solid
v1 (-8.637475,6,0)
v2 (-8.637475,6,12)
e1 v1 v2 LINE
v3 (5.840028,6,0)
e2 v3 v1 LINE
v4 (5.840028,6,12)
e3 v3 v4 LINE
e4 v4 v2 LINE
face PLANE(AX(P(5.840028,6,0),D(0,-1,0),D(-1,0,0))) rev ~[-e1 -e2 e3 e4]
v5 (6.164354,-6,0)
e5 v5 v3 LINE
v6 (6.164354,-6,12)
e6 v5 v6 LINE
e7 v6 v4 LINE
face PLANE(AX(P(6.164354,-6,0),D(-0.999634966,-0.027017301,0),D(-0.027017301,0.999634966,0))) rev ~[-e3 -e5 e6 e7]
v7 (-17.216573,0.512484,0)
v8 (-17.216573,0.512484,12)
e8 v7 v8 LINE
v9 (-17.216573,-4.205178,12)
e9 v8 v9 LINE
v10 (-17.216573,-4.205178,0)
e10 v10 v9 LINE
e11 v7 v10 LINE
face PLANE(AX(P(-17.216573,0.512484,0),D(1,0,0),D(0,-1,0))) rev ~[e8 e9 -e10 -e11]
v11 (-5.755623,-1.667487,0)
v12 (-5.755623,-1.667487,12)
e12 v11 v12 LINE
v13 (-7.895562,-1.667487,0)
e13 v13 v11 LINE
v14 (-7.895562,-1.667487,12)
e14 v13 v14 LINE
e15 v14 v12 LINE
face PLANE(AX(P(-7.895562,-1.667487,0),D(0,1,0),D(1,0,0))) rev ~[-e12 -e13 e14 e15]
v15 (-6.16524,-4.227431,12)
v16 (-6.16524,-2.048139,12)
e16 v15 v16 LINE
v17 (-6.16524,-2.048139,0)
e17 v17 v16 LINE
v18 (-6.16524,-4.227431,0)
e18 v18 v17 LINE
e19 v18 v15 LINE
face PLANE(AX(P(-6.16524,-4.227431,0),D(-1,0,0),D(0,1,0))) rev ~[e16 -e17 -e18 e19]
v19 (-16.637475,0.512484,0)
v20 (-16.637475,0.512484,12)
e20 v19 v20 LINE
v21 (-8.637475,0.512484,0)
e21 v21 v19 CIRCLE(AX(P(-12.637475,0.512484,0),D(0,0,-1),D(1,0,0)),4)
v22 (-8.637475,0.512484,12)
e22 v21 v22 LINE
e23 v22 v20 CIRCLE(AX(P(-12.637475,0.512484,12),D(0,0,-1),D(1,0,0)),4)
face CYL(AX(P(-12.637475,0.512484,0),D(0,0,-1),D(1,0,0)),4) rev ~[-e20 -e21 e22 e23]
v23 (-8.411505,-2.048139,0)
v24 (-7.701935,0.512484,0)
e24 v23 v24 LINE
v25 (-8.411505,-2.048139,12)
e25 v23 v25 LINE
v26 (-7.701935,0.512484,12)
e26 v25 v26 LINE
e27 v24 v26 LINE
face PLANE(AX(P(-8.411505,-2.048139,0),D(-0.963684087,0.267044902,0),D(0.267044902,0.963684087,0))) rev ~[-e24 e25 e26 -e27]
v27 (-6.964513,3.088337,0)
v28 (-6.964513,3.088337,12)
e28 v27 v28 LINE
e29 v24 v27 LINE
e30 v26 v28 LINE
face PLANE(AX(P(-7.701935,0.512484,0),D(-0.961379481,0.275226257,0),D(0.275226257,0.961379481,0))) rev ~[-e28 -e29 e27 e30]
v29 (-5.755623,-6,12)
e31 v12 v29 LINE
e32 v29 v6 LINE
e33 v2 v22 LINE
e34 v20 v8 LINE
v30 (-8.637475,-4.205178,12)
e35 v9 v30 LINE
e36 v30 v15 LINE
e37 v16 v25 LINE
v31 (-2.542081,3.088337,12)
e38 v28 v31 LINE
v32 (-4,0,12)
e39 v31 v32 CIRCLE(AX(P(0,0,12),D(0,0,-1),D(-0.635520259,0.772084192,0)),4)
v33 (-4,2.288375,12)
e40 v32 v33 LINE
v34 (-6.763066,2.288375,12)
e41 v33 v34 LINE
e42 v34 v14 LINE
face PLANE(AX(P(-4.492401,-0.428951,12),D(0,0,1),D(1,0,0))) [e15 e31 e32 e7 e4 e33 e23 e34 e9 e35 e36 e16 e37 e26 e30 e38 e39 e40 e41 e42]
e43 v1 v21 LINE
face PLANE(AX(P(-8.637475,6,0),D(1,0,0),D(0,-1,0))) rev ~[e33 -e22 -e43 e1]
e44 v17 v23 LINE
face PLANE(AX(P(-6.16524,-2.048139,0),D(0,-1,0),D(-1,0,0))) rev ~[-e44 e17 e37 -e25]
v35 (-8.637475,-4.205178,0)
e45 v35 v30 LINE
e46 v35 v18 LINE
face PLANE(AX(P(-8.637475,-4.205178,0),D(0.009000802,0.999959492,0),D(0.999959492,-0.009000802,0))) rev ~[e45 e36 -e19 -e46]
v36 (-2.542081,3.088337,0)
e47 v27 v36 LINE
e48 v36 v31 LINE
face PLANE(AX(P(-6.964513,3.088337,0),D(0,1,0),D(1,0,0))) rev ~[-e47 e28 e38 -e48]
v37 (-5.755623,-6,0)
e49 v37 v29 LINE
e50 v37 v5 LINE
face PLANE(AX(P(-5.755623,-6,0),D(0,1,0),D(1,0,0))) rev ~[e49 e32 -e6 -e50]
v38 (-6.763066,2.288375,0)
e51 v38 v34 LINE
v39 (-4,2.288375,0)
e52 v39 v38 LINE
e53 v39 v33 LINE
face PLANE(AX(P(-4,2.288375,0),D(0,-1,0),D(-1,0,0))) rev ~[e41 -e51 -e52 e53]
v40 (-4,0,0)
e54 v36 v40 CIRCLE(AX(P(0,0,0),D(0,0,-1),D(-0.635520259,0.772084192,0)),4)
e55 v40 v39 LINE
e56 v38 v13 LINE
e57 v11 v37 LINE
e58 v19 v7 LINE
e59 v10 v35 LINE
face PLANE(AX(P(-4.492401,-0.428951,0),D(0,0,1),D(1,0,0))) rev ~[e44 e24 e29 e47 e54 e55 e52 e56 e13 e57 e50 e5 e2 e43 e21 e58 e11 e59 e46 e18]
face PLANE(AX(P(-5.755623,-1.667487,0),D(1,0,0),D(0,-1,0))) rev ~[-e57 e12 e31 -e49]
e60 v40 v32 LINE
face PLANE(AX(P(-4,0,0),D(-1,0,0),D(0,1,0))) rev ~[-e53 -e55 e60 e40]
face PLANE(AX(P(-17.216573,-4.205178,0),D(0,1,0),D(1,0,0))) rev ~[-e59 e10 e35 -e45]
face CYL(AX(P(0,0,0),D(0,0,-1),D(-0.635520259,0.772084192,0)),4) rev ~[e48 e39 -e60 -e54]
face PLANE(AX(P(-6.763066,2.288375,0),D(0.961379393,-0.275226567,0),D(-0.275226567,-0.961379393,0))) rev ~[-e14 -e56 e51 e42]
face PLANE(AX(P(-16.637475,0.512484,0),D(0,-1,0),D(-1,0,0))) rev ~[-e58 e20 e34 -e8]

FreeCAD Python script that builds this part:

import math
import FreeCAD as App
import Part
import Sketcher
from FreeCAD import Vector
Q = App.Units.Quantity

doc = App.newDocument("Part")
body = doc.addObject("PartDesign::Body", "Body")

# Sketch on XY plane
sketch1 = doc.addObject("Sketcher::SketchObject", "Sketch")
body.addObject(sketch1)
sketch1.AttachmentSupport = (doc.XY_Plane, [""])
sketch1.MapMode = "FlatFace"
sketch1.addGeometry([
    Part.ArcOfCircle(Part.Circle(Vector(0, 0, 0), Vector(0, 0, 1), 4), math.radians(-180), math.radians(129)),  # 0
    Part.LineSegment(Vector(-4, 0, 0), Vector(-4, 2.3, 0)),  # 1
    Part.LineSegment(Vector(-4, 2.3, 0), Vector(-6.8, 2.3, 0)),  # 2
    Part.LineSegment(Vector(-6.8, 2.3, 0), Vector(-7.9, -1.7, 0)),  # 3
    Part.LineSegment(Vector(-7.9, -1.7, 0), Vector(-5.8, -1.7, 0)),  # 4
    Part.LineSegment(Vector(-5.8, -1.7, 0), Vector(-5.8, -6, 0)),  # 5
    Part.LineSegment(Vector(-5.8, -6, 0), Vector(6.2, -6, 0)),  # 6
    Part.LineSegment(Vector(6.2, -6, 0), Vector(5.8, 6, 0)),  # 7
    Part.LineSegment(Vector(5.8, 6, 0), Vector(-8.6, 6, 0)),  # 8
    Part.LineSegment(Vector(-8.6, 6, 0), Vector(-8.6, 0.5, 0)),  # 9
    Part.ArcOfCircle(Part.Circle(Vector(-12.6, 0.5, 0), Vector(0, 0, 1), 4), math.radians(180), math.radians(360)),  # 10
    Part.LineSegment(Vector(-16.6, 0.5, 0), Vector(-17.2, 0.5, 0)),  # 11
    Part.LineSegment(Vector(-17.2, 0.5, 0), Vector(-17.2, -4.2, 0)),  # 12
    Part.LineSegment(Vector(-17.2, -4.2, 0), Vector(-8.6, -4.2, 0)),  # 13
    Part.LineSegment(Vector(-8.6, -4.2, 0), Vector(-6.2, -4.2, 0)),  # 14
    Part.LineSegment(Vector(-6.2, -4.2, 0), Vector(-6.2, -2, 0)),  # 15
    Part.LineSegment(Vector(-6.2, -2, 0), Vector(-8.4, -2, 0)),  # 16
    Part.LineSegment(Vector(-8.4, -2, 0), Vector(-7.7, 0.5, 0)),  # 17
    Part.LineSegment(Vector(-7.7, 0.5, 0), Vector(-7, 3.1, 0)),  # 18
    Part.LineSegment(Vector(-7, 3.1, 0), Vector(-2.5, 3.1, 0)),  # 19
], False)
sketch1.addConstraint([
    Sketcher.Constraint("Tangent", 0, 1, 1, 1),
    Sketcher.Constraint("Coincident", 1, 2, 2, 1),
    Sketcher.Constraint("Coincident", 2, 2, 3, 1),
    Sketcher.Constraint("Coincident", 3, 2, 4, 1),
    Sketcher.Constraint("Coincident", 4, 2, 5, 1),
    Sketcher.Constraint("Coincident", 5, 2, 6, 1),
    Sketcher.Constraint("Coincident", 6, 2, 7, 1),
    Sketcher.Constraint("Coincident", 7, 2, 8, 1),
    Sketcher.Constraint("Coincident", 8, 2, 9, 1),
    Sketcher.Constraint("Tangent", 9, 2, 10, 2),
    Sketcher.Constraint("Coincident", 10, 1, 11, 1),
    Sketcher.Constraint("Coincident", 11, 2, 12, 1),
    Sketcher.Constraint("Coincident", 12, 2, 13, 1),
    Sketcher.Constraint("Coincident", 13, 2, 14, 1),
    Sketcher.Constraint("Coincident", 14, 2, 15, 1),
    Sketcher.Constraint("Coincident", 15, 2, 16, 1),
    Sketcher.Constraint("Coincident", 16, 2, 17, 1),
    Sketcher.Constraint("Coincident", 17, 2, 18, 1),
    Sketcher.Constraint("Coincident", 18, 2, 19, 1),
    Sketcher.Constraint("Coincident", 19, 2, 0, 2),
    Sketcher.Constraint("Vertical", 1),
    Sketcher.Constraint("Horizontal", 2),
    Sketcher.Constraint("Horizontal", 4),
    Sketcher.Constraint("Vertical", 5),
    Sketcher.Constraint("Horizontal", 6),
    Sketcher.Constraint("Horizontal", 8),
    Sketcher.Constraint("Vertical", 9),
    Sketcher.Constraint("Horizontal", 11),
    Sketcher.Constraint("Vertical", 12),
    Sketcher.Constraint("Horizontal", 13),
    Sketcher.Constraint("Vertical", 15),
    Sketcher.Constraint("Horizontal", 16),
    Sketcher.Constraint("Horizontal", 19),
    Sketcher.Constraint("Coincident", 0, 3, -1, 1),
    Sketcher.Constraint("Equal", 0, 10),
    Sketcher.Constraint("Parallel", 3, 18),
    Sketcher.Constraint("Horizontal", 9, 2, 10, 1),
    Sketcher.Constraint("Horizontal", 11, 2, 17, 2),
    Sketcher.Constraint("Vertical", 9, 2, 13, 2),
    Sketcher.Constraint("Radius", 0, Q("4 mm")),
    Sketcher.Constraint("DistanceY", 5, 2, -1, 1, Q("6 mm")),
    Sketcher.Constraint("DistanceY", -1, 1, 7, 2, Q("6 mm")),
    Sketcher.Constraint("DistanceX", 11, 2, 11, 1, Q("0.579098 mm")),
    Sketcher.Constraint("DistanceX", 4, 1, 4, 2, Q("2.139939 mm")),
    Sketcher.Constraint("DistanceY", 12, 2, 12, 1, Q("4.717662 mm")),
    Sketcher.Constraint("Distance", 17, Q("2.657119 mm")),
    Sketcher.Constraint("Distance", 18, Q("2.67933 mm")),
    Sketcher.Constraint("DistanceX", 2, 2, 2, 1, Q("2.763066 mm")),
    Sketcher.Constraint("DistanceX", 6, 1, 6, 2, Q("11.919977 mm")),
    Sketcher.Constraint("DistanceX", 8, 2, 8, 1, Q("14.477503 mm")),
    Sketcher.Constraint("DistanceX", 16, 2, 16, 1, Q("2.246265 mm")),
    Sketcher.Constraint("DistanceX", 19, 1, 19, 2, Q("4.422432 mm")),
    Sketcher.Constraint("DistanceY", 1, 1, 1, 2, Q("2.288375 mm")),
    Sketcher.Constraint("DistanceY", 5, 2, 5, 1, Q("4.332513 mm")),
    Sketcher.Constraint("DistanceY", 9, 2, 9, 1, Q("5.487516 mm")),
    Sketcher.Constraint("DistanceY", 15, 1, 15, 2, Q("2.179292 mm")),
    Sketcher.Constraint("DistanceX", -1, 1, 7, 2, Q("5.840028 mm")),
    Sketcher.Constraint("DistanceX", 14, 2, -1, 1, Q("6.16524 mm")),
    Sketcher.Constraint("DistanceY", 14, 2, -1, 1, Q("4.227431 mm")),
])
pad1 = doc.addObject("PartDesign::Pad", "Pad")
body.addObject(pad1)
pad1.Profile = sketch1
pad1.Length = 12

doc.recompute()
